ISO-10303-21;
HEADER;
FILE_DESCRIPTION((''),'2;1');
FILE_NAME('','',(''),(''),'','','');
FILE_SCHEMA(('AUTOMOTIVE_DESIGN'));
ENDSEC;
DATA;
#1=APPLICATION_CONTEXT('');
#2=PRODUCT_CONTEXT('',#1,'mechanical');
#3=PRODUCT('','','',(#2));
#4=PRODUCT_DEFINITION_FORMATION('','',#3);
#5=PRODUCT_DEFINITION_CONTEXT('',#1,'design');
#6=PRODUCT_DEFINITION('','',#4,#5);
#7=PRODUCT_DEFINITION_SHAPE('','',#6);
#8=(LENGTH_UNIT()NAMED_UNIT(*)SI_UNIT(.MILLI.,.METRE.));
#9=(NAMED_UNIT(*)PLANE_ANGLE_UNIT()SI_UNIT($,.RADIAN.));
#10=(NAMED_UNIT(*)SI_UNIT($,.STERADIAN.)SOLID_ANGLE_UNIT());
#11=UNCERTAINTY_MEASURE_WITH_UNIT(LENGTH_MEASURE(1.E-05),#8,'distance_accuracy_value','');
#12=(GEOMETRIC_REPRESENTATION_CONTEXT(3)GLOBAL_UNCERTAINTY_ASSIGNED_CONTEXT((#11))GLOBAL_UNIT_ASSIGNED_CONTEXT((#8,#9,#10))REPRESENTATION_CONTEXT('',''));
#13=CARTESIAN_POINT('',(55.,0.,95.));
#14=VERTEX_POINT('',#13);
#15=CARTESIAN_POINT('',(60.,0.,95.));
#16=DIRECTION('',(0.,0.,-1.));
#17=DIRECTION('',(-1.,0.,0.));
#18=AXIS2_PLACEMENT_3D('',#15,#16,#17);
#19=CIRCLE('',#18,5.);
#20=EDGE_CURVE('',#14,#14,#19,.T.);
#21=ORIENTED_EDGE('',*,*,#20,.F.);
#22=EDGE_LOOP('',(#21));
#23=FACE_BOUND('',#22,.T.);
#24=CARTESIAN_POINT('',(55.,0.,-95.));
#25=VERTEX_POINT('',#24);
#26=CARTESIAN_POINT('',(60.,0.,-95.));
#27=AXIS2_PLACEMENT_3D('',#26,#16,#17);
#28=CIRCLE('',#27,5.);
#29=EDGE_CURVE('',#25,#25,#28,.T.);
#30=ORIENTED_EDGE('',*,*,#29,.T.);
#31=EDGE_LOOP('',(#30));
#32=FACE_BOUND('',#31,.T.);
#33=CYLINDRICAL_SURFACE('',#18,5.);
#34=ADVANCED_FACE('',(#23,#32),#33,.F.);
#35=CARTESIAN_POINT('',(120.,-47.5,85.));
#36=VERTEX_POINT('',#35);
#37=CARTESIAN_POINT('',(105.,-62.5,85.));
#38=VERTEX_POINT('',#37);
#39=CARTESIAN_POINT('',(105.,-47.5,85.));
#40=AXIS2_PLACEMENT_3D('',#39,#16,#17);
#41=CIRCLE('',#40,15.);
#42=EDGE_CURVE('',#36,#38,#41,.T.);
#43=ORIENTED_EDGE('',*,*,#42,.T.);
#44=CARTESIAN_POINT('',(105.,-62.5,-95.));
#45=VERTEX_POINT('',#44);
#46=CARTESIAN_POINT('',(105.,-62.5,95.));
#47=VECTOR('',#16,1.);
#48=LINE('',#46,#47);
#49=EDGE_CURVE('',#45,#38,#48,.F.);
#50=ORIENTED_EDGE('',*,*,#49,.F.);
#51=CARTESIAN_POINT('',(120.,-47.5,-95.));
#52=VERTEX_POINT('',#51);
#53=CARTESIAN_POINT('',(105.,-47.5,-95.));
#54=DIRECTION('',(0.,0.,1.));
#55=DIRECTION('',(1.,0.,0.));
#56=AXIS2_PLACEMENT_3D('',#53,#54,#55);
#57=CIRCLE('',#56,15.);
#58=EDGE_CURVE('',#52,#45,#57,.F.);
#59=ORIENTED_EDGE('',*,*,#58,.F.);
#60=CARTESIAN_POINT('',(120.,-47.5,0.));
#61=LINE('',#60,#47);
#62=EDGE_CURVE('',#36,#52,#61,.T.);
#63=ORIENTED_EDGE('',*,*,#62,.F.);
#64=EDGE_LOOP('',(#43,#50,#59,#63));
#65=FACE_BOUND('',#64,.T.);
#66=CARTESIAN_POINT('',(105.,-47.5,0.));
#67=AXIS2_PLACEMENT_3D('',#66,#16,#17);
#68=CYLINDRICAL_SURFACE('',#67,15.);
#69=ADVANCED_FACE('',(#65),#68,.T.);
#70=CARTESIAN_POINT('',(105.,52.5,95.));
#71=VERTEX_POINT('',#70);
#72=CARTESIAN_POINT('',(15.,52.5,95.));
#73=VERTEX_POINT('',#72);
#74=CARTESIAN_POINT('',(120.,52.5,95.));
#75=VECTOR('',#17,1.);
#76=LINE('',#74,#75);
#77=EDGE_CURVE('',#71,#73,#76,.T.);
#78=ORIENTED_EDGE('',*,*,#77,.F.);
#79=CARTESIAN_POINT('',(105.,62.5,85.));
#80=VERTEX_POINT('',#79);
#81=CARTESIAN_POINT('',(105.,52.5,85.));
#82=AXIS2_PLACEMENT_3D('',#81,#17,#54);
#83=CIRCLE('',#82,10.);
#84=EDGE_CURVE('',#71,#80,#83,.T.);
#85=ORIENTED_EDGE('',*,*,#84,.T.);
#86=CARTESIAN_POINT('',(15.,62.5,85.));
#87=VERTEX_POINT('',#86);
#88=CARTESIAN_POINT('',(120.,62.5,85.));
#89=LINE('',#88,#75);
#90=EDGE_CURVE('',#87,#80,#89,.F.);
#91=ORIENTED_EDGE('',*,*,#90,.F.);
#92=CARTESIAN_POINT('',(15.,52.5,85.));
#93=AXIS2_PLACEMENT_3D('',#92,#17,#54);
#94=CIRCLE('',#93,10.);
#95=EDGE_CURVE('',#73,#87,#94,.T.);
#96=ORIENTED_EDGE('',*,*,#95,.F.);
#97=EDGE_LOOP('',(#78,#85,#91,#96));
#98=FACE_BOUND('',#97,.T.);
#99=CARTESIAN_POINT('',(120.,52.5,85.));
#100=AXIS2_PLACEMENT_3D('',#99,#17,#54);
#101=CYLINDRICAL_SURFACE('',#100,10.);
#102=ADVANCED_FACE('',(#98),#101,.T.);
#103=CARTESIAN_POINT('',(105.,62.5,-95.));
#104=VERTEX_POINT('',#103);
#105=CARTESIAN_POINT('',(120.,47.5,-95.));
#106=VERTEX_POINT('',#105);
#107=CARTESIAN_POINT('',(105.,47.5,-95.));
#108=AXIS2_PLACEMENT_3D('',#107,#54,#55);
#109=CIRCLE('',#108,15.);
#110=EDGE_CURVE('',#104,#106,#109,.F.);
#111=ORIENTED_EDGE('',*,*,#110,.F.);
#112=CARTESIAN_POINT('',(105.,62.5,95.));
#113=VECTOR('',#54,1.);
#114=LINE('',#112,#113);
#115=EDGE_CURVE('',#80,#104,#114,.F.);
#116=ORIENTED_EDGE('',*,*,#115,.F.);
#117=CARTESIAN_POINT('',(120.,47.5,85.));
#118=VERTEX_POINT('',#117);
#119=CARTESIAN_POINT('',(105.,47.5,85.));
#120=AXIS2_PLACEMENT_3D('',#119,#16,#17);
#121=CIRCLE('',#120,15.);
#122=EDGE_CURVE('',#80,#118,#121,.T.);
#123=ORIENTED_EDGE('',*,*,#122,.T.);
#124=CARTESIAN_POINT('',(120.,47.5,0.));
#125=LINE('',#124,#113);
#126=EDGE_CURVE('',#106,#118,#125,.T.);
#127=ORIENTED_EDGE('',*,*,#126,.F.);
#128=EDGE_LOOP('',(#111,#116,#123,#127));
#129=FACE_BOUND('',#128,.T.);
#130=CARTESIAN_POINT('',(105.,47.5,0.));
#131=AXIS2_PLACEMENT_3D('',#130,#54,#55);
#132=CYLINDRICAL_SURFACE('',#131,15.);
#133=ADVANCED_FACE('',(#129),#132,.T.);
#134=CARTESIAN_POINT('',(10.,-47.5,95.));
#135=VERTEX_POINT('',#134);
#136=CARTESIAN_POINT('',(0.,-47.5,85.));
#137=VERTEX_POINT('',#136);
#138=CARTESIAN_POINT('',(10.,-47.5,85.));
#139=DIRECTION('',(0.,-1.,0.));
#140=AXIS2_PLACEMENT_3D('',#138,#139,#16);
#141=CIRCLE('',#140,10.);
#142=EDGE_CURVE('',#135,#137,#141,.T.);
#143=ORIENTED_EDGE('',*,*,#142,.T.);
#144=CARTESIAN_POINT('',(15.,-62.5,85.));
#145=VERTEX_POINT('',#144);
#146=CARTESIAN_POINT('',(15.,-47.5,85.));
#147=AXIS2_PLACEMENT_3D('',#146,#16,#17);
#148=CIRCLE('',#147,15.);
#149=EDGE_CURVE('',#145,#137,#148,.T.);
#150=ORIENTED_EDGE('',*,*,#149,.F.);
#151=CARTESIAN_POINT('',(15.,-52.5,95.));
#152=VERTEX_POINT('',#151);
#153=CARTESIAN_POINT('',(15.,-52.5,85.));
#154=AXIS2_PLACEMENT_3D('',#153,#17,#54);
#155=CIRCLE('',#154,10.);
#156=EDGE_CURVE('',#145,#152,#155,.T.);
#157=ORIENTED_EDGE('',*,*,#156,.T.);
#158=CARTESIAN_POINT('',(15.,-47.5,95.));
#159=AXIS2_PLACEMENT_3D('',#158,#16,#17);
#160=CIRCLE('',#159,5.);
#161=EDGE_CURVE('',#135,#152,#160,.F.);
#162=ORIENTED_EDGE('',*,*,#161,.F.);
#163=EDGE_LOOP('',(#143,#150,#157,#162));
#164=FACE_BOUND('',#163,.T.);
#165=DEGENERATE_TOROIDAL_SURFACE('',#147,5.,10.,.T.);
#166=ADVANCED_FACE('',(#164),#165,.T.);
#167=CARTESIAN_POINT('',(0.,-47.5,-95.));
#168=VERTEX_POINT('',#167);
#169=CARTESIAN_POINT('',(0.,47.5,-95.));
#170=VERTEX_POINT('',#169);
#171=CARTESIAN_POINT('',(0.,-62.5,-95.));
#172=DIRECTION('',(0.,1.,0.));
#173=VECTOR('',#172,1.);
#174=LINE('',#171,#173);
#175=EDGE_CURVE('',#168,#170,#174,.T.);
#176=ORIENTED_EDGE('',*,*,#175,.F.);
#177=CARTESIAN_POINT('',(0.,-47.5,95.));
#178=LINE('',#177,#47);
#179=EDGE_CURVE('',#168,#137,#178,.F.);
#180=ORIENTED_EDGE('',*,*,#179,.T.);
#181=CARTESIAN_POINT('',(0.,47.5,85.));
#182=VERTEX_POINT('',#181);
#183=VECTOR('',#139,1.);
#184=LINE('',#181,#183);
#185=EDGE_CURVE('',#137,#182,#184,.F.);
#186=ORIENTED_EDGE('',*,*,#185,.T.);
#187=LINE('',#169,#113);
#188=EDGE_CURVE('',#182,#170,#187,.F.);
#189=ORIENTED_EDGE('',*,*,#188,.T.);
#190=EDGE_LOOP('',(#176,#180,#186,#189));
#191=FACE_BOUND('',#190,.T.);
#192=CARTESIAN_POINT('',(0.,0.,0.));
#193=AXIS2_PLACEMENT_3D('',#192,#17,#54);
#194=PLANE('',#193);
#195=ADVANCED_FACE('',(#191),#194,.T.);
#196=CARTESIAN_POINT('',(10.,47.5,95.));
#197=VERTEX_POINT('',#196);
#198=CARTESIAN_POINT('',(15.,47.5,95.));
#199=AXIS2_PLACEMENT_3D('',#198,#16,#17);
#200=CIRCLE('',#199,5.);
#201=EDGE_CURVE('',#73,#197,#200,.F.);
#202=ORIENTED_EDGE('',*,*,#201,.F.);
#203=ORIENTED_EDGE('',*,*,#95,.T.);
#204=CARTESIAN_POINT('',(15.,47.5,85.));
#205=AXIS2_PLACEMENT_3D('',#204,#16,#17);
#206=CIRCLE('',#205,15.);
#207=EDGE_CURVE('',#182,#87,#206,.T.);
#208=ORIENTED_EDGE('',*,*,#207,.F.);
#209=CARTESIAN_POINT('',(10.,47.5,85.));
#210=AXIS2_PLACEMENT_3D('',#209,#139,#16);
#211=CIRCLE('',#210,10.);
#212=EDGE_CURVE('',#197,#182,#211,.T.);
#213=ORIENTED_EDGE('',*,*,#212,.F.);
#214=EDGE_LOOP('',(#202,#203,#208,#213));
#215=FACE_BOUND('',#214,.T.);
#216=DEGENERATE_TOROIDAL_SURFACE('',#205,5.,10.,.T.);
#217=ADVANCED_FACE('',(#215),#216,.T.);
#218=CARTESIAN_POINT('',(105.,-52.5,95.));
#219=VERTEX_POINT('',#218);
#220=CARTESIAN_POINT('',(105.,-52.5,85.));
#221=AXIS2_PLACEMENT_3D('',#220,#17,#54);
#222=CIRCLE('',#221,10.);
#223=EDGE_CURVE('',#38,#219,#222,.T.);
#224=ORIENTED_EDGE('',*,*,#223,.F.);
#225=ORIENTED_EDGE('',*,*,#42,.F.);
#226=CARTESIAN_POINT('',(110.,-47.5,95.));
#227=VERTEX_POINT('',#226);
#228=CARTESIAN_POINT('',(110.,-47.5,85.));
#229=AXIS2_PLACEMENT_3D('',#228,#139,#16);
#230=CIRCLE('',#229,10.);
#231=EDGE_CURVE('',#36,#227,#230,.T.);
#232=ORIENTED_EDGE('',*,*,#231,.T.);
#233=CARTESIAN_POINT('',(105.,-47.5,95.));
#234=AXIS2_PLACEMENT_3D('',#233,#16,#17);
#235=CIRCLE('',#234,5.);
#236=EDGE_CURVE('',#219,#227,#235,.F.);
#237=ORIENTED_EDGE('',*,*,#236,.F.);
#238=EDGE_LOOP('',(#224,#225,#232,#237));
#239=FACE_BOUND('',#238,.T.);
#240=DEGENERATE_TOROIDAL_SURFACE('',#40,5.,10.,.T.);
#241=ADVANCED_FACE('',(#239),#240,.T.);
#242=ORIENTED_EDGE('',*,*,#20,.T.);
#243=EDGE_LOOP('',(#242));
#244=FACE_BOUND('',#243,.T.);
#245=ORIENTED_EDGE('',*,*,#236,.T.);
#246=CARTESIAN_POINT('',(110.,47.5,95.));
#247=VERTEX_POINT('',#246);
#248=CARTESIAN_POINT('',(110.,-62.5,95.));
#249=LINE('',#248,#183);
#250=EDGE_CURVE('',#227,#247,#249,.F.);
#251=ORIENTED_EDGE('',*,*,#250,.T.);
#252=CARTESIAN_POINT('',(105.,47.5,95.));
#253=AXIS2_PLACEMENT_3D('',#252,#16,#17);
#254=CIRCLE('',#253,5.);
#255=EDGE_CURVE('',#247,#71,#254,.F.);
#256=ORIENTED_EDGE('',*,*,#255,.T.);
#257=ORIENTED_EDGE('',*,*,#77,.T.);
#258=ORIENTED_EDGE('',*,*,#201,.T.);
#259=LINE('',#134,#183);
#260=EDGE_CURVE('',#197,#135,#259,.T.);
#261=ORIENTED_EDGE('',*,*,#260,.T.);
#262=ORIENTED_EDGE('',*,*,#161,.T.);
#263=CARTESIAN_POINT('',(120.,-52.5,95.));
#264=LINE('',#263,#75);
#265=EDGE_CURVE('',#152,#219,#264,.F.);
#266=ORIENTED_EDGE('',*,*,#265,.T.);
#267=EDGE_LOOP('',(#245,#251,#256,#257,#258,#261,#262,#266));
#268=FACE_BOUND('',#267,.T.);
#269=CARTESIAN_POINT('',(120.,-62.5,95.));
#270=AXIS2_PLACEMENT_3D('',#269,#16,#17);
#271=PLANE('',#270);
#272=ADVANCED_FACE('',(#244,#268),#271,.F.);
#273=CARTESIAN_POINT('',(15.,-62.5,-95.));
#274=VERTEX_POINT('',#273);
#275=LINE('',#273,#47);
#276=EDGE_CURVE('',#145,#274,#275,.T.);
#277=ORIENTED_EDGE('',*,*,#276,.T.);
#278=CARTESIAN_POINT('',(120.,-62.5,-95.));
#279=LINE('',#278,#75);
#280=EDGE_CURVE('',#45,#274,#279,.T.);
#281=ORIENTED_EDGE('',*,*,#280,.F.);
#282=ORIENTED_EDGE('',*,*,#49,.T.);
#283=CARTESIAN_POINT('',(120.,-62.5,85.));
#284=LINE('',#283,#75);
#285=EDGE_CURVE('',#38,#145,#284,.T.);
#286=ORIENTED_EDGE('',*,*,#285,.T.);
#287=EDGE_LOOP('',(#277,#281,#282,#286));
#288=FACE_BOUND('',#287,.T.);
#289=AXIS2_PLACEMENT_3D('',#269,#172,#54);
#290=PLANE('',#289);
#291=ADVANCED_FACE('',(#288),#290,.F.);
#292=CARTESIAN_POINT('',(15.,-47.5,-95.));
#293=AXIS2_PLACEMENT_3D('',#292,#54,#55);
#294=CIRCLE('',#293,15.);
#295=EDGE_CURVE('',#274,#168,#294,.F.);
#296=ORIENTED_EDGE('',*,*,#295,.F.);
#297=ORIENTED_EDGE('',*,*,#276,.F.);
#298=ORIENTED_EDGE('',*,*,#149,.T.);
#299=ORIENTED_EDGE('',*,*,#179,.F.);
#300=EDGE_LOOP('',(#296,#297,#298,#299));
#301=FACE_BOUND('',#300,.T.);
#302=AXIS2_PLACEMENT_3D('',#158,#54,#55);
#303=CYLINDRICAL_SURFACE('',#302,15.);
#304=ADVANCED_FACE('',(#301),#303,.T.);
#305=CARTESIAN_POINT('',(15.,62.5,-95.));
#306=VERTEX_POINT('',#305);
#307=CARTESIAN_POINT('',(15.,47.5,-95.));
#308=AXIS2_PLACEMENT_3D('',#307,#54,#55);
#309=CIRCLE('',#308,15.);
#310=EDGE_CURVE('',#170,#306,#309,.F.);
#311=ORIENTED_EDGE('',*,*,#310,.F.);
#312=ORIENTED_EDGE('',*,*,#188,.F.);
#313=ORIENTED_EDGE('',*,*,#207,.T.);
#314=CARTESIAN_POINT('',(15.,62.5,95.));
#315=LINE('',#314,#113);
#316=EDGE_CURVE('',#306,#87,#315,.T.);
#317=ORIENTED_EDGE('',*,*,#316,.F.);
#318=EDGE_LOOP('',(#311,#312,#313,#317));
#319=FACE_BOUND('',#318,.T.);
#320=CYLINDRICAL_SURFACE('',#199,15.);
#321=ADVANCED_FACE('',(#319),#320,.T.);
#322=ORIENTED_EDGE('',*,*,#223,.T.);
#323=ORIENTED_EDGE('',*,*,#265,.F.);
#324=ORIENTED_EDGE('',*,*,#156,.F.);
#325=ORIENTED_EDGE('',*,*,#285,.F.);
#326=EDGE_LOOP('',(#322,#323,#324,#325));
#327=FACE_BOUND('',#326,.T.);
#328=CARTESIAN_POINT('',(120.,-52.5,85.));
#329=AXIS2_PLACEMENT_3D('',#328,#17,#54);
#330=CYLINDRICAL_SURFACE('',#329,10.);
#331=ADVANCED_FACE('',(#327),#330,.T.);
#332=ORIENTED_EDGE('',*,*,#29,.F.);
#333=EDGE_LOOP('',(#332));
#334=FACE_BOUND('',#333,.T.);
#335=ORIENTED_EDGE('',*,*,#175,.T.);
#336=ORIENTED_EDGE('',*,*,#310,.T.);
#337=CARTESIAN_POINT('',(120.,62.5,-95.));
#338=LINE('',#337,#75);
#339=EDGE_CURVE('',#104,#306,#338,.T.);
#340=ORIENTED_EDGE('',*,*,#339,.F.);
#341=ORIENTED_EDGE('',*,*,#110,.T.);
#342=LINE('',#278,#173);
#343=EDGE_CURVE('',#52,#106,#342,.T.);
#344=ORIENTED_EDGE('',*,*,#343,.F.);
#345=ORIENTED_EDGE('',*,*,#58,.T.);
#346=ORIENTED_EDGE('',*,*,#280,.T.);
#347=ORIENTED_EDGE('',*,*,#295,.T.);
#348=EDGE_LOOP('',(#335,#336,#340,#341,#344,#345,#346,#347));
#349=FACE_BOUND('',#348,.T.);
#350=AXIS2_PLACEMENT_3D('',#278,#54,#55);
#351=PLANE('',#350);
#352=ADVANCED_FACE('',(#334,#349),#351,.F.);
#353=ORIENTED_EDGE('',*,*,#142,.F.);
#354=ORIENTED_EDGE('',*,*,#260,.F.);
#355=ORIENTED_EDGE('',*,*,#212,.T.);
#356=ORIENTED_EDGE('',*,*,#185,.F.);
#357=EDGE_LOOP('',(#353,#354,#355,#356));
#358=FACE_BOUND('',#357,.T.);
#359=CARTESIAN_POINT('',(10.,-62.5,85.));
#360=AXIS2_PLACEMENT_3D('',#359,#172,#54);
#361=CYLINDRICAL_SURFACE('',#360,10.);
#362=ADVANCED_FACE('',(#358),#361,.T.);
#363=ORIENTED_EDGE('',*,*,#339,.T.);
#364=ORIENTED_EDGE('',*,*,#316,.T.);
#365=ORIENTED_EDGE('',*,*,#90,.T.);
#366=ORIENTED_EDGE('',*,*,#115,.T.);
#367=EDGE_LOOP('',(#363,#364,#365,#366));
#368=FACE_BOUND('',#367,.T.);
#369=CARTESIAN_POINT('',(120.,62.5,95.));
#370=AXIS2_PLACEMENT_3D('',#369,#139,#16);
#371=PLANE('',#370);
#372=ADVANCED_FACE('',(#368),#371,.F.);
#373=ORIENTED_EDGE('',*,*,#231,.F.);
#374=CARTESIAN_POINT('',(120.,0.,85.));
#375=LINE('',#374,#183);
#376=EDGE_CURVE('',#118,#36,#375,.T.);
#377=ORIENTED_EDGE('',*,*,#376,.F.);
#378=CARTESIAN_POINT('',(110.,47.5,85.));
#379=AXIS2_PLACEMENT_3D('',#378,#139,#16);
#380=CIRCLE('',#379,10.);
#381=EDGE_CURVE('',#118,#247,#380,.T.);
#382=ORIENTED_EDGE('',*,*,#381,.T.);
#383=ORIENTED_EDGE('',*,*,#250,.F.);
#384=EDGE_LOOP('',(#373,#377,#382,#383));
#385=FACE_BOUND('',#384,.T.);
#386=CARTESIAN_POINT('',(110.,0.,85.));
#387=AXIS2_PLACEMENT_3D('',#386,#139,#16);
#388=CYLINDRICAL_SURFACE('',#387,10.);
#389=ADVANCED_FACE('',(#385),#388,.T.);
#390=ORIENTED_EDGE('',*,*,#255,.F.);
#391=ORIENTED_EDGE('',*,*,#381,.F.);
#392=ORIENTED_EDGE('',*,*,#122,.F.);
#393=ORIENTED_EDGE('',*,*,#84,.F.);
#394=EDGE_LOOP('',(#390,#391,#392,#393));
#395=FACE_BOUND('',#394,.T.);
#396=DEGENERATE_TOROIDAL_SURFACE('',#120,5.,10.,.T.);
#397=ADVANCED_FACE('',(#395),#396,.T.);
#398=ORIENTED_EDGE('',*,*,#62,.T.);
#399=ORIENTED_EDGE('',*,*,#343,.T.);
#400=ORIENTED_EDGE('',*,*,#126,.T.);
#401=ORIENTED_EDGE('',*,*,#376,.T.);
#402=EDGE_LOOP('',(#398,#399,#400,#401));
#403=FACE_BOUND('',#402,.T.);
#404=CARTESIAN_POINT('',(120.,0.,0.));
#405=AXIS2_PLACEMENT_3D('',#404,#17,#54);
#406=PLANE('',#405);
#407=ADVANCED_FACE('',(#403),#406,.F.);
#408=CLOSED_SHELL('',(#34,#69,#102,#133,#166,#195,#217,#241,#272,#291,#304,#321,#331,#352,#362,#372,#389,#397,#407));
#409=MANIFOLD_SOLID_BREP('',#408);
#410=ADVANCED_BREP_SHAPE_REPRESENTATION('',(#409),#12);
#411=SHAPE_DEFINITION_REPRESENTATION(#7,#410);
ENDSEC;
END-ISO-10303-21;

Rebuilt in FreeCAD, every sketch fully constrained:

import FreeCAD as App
import Part
import Sketcher

V = App.Vector
Q = App.Units.Quantity


def edges_at(feature, points):
    """Names of the edges that pass closest to the given points."""
    edges = feature.Shape.Edges
    near = lambda p: min(range(len(edges)), key=lambda i: edges[i].distToShape(Part.Vertex(*p))[0])
    return sorted({f"Edge{near(p) + 1}" for p in points})

doc = App.newDocument("Part")
body = doc.addObject("PartDesign::Body", "Body")

sketch1 = doc.addObject("Sketcher::SketchObject", "Sketch")
body.addObject(sketch1)
sketch1.AttachmentSupport = (doc.YZ_Plane, [""])
sketch1.MapMode = "FlatFace"
sketch1.addGeometry([
    Part.LineSegment(V(62, 95, 0), V(-62, 95, 0)),
    Part.LineSegment(V(-62, 95, 0), V(-62, -95, 0)),
    Part.LineSegment(V(-62, -95, 0), V(62, -95, 0)),
    Part.LineSegment(V(62, -95, 0), V(62, 95, 0)),
], False)
sketch1.addConstraint([
    Sketcher.Constraint("Coincident", 0, 2, 1, 1),
    Sketcher.Constraint("Coincident", 1, 2, 2, 1),
    Sketcher.Constraint("Coincident", 2, 2, 3, 1),
    Sketcher.Constraint("Coincident", 3, 2, 0, 1),
    Sketcher.Constraint("Horizontal", 0),
    Sketcher.Constraint("Vertical", 1),
    Sketcher.Constraint("Horizontal", 2),
    Sketcher.Constraint("Vertical", 3),
    Sketcher.Constraint("Symmetric", 0, 2, 2, 2, -1, 1),
    Sketcher.Constraint("DistanceX", 0, 2, 0, 1, Q("125 mm")),
    Sketcher.Constraint("DistanceY", 1, 2, 1, 1, Q("190 mm")),
])
pad1 = doc.addObject("PartDesign::Pad", "Pad")
body.addObject(pad1)
pad1.Profile = sketch1
pad1.Length = 120
doc.recompute()

fillet = doc.addObject("PartDesign::Fillet", "Fillet")
body.addObject(fillet)
fillet.Base = (pad1, edges_at(pad1, [
    (120, -62.5, 0),
    (0, -62.5, 0),
    (0, 62.5, 0),
    (120, 62.5, 0),
]))
fillet.Radius = 15
doc.recompute()

fillet2 = doc.addObject("PartDesign::Fillet", "Fillet001")
body.addObject(fillet2)
fillet2.Base = (fillet, edges_at(fillet, [
    (120, 0, 95),
    (0, 0, 95),
    (60, -62.5, 95),
    (60, 62.5, 95),
    (4.393, -58.107, 95),
    (4.393, 58.107, 95),
    (115.607, -58.107, 95),
    (115.607, 58.107, 95),
]))
fillet2.Radius = 10

sketch2 = doc.addObject("Sketcher::SketchObject", "Sketch001")
body.addObject(sketch2)
sketch2.AttachmentSupport = (doc.XY_Plane, [""])
sketch2.MapMode = "FlatFace"
sketch2.AttachmentOffset = App.Placement(V(0, 0, -95), App.Rotation())
sketch2.addGeometry(Part.Circle(V(60, 0, 0), V(0, 0, 1), 5), False)
sketch2.addConstraint([
    Sketcher.Constraint("PointOnObject", 0, 3, -1),
    Sketcher.Constraint("Diameter", 0, Q("10 mm")),
    Sketcher.Constraint("DistanceX", -1, 1, 0, 3, Q("60 mm")),
])
pocket1 = doc.addObject("PartDesign::Pocket", "Pocket")
body.addObject(pocket1)
pocket1.Profile = sketch2
pocket1.Type = "ThroughAll"
pocket1.Reversed = True

doc.recompute()
